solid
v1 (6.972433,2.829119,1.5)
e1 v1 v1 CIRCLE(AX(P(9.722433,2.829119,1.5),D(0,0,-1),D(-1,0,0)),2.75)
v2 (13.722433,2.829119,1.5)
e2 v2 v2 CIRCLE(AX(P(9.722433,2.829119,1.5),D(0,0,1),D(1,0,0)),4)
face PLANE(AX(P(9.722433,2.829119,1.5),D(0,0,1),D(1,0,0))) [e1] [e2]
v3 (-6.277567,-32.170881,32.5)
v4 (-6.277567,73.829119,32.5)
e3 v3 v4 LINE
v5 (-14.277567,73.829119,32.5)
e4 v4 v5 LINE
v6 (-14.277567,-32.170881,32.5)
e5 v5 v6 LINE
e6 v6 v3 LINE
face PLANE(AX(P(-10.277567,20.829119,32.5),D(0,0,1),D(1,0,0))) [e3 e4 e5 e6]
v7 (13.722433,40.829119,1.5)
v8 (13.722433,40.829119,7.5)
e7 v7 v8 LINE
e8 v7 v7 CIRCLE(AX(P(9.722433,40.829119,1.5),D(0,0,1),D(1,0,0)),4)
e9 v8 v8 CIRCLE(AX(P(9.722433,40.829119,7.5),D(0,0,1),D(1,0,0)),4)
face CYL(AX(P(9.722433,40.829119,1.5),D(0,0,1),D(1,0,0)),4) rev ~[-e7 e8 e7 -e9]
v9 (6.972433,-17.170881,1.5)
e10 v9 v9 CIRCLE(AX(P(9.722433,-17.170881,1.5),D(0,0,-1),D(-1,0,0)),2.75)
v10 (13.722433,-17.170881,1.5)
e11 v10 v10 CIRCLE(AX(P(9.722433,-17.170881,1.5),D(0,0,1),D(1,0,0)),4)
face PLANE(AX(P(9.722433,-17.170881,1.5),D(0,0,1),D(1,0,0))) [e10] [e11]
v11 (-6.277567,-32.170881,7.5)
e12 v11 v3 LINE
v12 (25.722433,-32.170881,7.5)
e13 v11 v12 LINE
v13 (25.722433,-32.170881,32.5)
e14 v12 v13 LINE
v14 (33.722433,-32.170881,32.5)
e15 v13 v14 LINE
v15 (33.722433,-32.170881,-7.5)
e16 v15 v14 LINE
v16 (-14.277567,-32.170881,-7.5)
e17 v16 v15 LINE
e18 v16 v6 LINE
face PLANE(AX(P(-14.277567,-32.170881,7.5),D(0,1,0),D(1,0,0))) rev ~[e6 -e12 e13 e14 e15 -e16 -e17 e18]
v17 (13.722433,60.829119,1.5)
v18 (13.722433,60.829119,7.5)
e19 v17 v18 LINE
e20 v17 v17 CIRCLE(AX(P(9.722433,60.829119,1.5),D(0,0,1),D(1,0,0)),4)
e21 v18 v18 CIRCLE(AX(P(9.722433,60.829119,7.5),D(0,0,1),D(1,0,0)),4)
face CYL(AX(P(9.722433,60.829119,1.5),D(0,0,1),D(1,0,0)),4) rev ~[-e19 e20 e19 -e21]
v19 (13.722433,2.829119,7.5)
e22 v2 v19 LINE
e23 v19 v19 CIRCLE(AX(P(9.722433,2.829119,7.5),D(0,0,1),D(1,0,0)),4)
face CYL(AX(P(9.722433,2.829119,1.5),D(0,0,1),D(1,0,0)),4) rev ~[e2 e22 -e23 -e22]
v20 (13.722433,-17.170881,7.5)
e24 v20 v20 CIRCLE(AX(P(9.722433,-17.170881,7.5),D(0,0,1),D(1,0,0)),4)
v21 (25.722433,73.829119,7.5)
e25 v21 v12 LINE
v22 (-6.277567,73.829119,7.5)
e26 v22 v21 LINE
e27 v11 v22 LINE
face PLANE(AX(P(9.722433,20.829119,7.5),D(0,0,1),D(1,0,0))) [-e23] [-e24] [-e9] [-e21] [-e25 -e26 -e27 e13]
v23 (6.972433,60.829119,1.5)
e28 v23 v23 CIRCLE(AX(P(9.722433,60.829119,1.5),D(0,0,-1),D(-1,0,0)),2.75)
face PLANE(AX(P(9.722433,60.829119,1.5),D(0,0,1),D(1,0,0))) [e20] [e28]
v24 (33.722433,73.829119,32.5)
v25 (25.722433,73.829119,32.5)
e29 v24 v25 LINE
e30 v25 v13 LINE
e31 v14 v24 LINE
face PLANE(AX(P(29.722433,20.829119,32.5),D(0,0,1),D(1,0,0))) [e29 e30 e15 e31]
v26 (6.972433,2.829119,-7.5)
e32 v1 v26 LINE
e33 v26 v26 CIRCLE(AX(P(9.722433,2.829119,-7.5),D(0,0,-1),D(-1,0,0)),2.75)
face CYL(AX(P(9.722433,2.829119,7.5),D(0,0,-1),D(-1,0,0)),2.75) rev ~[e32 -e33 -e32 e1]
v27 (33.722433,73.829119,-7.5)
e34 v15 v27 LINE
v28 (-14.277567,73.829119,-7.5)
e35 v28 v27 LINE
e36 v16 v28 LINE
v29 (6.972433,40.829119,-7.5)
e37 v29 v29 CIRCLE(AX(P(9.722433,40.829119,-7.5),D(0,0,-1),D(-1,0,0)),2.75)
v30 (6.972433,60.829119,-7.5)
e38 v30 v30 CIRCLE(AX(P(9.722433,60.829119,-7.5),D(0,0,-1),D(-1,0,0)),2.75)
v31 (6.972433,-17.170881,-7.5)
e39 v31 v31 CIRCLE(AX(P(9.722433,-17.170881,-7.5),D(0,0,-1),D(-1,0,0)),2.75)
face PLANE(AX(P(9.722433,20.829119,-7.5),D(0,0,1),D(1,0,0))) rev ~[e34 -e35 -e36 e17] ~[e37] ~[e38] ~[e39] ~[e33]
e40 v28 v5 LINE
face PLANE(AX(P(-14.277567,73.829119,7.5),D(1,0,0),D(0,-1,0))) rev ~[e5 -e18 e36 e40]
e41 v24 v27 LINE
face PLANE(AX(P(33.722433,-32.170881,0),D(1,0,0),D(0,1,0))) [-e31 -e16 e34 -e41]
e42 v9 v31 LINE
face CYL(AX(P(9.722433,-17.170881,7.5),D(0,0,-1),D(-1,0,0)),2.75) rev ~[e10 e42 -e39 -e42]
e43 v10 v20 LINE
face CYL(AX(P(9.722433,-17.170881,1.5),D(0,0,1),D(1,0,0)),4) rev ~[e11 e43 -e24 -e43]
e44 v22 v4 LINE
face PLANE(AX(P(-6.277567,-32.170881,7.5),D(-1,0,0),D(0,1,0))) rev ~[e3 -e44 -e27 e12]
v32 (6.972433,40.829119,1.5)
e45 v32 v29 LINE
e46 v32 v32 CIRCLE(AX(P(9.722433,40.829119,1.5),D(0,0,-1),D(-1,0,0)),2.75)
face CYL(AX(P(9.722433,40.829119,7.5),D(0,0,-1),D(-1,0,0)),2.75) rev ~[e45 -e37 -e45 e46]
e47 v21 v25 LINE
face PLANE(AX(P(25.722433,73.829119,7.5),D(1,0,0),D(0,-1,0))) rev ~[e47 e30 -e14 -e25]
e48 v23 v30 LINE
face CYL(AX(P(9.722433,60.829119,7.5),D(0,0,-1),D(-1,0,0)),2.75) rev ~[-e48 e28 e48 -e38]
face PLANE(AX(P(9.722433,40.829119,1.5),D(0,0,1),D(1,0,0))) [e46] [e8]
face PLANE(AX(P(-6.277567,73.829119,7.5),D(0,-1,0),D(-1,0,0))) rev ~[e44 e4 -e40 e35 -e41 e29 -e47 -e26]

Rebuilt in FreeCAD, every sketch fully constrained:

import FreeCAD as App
import Part
import Sketcher


def add_polygon(sketch, points):
    """Adds a closed chain of lines whose ends are joined by coincident constraints."""
    first, n = sketch.GeometryCount, len(points)
    for a, b in zip(points, points[1:] + points[:1]):
        sketch.addGeometry(Part.LineSegment(App.Vector(*a, 0), App.Vector(*b, 0)), False)
    for i in range(n):
        sketch.addConstraint(Sketcher.Constraint("Coincident", first + i, 2, first + (i + 1) % n, 1))

doc = App.newDocument("Part")
params = doc.addObject("Spreadsheet::Sheet", "Params")
for row, (alias, value) in enumerate([
    ("sketch1_width", "48 mm"),
    ("sketch1_height", "106 mm"),
    ("pad1_length", "15 mm"),
    ("sketch2_width", "8 mm"),
    ("sketch2_height", "106 mm"),
    ("pad2_length", "25 mm"),
    ("sketch3_diameter", "5.5 mm"),
    ("hole_diameter", "5.5 mm"),
    ("hole_cbore_diameter", "8 mm"),
    ("hole_cbore_depth", "6 mm"),
], start=1):
    params.set(f"A{row}", alias)
    params.set(f"B{row}", "=" + value)
    params.setAlias(f"B{row}", alias)

body = doc.addObject("PartDesign::Body", "Body")

sketch1 = body.newObject("Sketcher::SketchObject", "Sketch")
sketch1.AttachmentSupport = (doc.getObject("XY_Plane"), [""])
sketch1.MapMode = "FlatFace"
add_polygon(sketch1, [(-14, 74), (-14, -32), (34, -32), (34, 74)])
sketch1.addConstraint([
    Sketcher.Constraint("Vertical", 0),
    Sketcher.Constraint("Horizontal", 1),
    Sketcher.Constraint("Vertical", 2),
    Sketcher.Constraint("Horizontal", 3),
    Sketcher.Constraint("DistanceX", 1, 1, 1, 2, 48.0),
    Sketcher.Constraint("DistanceY", 0, 2, 0, 1, 106.0),
    Sketcher.Constraint("DistanceY", 0, 2, -1, 1, 32.170881),
    Sketcher.Constraint("DistanceX", 0, 2, -1, 1, 14.277567),
])
sketch1.setExpression("Constraints[8]", "Params.sketch1_width")
sketch1.setExpression("Constraints[9]", "Params.sketch1_height")
pad1 = body.newObject("PartDesign::Pad", "Pad")
pad1.Profile = sketch1
pad1.setExpression("Length", "Params.pad1_length")
pad1.Midplane = True

sketch2 = body.newObject("Sketcher::SketchObject", "Sketch001")
sketch2.AttachmentSupport = (doc.getObject("XY_Plane"), [""])
sketch2.MapMode = "FlatFace"
sketch2.AttachmentOffset = App.Placement(App.Vector(0, 0, 7.5), App.Rotation())
add_polygon(sketch2, [(-6, 74), (-14, 74), (-14, -32), (-6, -32)])
add_polygon(sketch2, [(34, 74), (26, 74), (26, -32), (34, -32)])
sketch2.addConstraint([
    Sketcher.Constraint("Horizontal", 0),
    Sketcher.Constraint("Vertical", 1),
    Sketcher.Constraint("Horizontal", 2),
    Sketcher.Constraint("Vertical", 3),
    Sketcher.Constraint("Horizontal", 4),
    Sketcher.Constraint("Vertical", 5),
    Sketcher.Constraint("Horizontal", 6),
    Sketcher.Constraint("Vertical", 7),
    Sketcher.Constraint("Horizontal", 3, 2, 4, 2),
    Sketcher.Constraint("Horizontal", 2, 2, 5, 2),
    Sketcher.Constraint("Equal", 2, 4),
    Sketcher.Constraint("DistanceX", 0, 2, 0, 1, 8.0),
    Sketcher.Constraint("DistanceY", 1, 2, 1, 1, 106.0),
    Sketcher.Constraint("DistanceX", 3, 2, 4, 2, 32.0),
    Sketcher.Constraint("DistanceY", -1, 1, 0, 2, 73.829119),
    Sketcher.Constraint("DistanceX", 0, 2, -1, 1, 14.277567),
])
sketch2.setExpression("Constraints[19]", "Params.sketch2_width")
sketch2.setExpression("Constraints[20]", "Params.sketch2_height")
pad2 = body.newObject("PartDesign::Pad", "Pad001")
pad2.Profile = sketch2
pad2.setExpression("Length", "Params.pad2_length")

sketch3 = body.newObject("Sketcher::SketchObject", "Sketch002")
sketch3.AttachmentSupport = (doc.getObject("XY_Plane"), [""])
sketch3.MapMode = "FlatFace"
sketch3.AttachmentOffset = App.Placement(App.Vector(0, 0, 7.5), App.Rotation())
sketch3.addGeometry([
    Part.Circle(App.Vector(9.7, 40.8, 0), App.Vector(0, 0, 1), 2.8),
    Part.Circle(App.Vector(9.7, 60.8, 0), App.Vector(0, 0, 1), 2.8),
    Part.Circle(App.Vector(9.7, 2.8, 0), App.Vector(0, 0, 1), 2.8),
    Part.Circle(App.Vector(9.7, -17.2, 0), App.Vector(0, 0, 1), 2.8),
], False)
sketch3.addConstraint([
    Sketcher.Constraint("Equal", 0, 1),
    Sketcher.Constraint("Equal", 1, 2),
    Sketcher.Constraint("Equal", 2, 3),
    Sketcher.Constraint("Vertical", 0, 3, 1, 3),
    Sketcher.Constraint("Vertical", 1, 3, 2, 3),
    Sketcher.Constraint("Vertical", 2, 3, 3, 3),
    Sketcher.Constraint("Diameter", 0, 5.5),
    Sketcher.Constraint("DistanceY", 0, 3, 1, 3, 20.0),
    Sketcher.Constraint("DistanceY", 2, 3, 0, 3, 38.0),
    Sketcher.Constraint("DistanceY", 3, 3, 2, 3, 20.0),
    Sketcher.Constraint("DistanceY", -1, 1, 0, 3, 40.829119),
    Sketcher.Constraint("DistanceX", -1, 1, 0, 3, 9.722433),
])
sketch3.setExpression("Constraints[6]", "Params.sketch3_diameter")
doc.recompute()
hole = body.newObject("PartDesign::Hole", "Hole")
hole.Profile = sketch3
hole.ThreadType = "None"
hole.setExpression("Diameter", "Params.hole_diameter")
hole.DepthType = "ThroughAll"
hole.HoleCutType = "Counterbore"
hole.setExpression("HoleCutDiameter", "Params.hole_cbore_diameter")
hole.setExpression("HoleCutDepth", "Params.hole_cbore_depth")

doc.recompute()
